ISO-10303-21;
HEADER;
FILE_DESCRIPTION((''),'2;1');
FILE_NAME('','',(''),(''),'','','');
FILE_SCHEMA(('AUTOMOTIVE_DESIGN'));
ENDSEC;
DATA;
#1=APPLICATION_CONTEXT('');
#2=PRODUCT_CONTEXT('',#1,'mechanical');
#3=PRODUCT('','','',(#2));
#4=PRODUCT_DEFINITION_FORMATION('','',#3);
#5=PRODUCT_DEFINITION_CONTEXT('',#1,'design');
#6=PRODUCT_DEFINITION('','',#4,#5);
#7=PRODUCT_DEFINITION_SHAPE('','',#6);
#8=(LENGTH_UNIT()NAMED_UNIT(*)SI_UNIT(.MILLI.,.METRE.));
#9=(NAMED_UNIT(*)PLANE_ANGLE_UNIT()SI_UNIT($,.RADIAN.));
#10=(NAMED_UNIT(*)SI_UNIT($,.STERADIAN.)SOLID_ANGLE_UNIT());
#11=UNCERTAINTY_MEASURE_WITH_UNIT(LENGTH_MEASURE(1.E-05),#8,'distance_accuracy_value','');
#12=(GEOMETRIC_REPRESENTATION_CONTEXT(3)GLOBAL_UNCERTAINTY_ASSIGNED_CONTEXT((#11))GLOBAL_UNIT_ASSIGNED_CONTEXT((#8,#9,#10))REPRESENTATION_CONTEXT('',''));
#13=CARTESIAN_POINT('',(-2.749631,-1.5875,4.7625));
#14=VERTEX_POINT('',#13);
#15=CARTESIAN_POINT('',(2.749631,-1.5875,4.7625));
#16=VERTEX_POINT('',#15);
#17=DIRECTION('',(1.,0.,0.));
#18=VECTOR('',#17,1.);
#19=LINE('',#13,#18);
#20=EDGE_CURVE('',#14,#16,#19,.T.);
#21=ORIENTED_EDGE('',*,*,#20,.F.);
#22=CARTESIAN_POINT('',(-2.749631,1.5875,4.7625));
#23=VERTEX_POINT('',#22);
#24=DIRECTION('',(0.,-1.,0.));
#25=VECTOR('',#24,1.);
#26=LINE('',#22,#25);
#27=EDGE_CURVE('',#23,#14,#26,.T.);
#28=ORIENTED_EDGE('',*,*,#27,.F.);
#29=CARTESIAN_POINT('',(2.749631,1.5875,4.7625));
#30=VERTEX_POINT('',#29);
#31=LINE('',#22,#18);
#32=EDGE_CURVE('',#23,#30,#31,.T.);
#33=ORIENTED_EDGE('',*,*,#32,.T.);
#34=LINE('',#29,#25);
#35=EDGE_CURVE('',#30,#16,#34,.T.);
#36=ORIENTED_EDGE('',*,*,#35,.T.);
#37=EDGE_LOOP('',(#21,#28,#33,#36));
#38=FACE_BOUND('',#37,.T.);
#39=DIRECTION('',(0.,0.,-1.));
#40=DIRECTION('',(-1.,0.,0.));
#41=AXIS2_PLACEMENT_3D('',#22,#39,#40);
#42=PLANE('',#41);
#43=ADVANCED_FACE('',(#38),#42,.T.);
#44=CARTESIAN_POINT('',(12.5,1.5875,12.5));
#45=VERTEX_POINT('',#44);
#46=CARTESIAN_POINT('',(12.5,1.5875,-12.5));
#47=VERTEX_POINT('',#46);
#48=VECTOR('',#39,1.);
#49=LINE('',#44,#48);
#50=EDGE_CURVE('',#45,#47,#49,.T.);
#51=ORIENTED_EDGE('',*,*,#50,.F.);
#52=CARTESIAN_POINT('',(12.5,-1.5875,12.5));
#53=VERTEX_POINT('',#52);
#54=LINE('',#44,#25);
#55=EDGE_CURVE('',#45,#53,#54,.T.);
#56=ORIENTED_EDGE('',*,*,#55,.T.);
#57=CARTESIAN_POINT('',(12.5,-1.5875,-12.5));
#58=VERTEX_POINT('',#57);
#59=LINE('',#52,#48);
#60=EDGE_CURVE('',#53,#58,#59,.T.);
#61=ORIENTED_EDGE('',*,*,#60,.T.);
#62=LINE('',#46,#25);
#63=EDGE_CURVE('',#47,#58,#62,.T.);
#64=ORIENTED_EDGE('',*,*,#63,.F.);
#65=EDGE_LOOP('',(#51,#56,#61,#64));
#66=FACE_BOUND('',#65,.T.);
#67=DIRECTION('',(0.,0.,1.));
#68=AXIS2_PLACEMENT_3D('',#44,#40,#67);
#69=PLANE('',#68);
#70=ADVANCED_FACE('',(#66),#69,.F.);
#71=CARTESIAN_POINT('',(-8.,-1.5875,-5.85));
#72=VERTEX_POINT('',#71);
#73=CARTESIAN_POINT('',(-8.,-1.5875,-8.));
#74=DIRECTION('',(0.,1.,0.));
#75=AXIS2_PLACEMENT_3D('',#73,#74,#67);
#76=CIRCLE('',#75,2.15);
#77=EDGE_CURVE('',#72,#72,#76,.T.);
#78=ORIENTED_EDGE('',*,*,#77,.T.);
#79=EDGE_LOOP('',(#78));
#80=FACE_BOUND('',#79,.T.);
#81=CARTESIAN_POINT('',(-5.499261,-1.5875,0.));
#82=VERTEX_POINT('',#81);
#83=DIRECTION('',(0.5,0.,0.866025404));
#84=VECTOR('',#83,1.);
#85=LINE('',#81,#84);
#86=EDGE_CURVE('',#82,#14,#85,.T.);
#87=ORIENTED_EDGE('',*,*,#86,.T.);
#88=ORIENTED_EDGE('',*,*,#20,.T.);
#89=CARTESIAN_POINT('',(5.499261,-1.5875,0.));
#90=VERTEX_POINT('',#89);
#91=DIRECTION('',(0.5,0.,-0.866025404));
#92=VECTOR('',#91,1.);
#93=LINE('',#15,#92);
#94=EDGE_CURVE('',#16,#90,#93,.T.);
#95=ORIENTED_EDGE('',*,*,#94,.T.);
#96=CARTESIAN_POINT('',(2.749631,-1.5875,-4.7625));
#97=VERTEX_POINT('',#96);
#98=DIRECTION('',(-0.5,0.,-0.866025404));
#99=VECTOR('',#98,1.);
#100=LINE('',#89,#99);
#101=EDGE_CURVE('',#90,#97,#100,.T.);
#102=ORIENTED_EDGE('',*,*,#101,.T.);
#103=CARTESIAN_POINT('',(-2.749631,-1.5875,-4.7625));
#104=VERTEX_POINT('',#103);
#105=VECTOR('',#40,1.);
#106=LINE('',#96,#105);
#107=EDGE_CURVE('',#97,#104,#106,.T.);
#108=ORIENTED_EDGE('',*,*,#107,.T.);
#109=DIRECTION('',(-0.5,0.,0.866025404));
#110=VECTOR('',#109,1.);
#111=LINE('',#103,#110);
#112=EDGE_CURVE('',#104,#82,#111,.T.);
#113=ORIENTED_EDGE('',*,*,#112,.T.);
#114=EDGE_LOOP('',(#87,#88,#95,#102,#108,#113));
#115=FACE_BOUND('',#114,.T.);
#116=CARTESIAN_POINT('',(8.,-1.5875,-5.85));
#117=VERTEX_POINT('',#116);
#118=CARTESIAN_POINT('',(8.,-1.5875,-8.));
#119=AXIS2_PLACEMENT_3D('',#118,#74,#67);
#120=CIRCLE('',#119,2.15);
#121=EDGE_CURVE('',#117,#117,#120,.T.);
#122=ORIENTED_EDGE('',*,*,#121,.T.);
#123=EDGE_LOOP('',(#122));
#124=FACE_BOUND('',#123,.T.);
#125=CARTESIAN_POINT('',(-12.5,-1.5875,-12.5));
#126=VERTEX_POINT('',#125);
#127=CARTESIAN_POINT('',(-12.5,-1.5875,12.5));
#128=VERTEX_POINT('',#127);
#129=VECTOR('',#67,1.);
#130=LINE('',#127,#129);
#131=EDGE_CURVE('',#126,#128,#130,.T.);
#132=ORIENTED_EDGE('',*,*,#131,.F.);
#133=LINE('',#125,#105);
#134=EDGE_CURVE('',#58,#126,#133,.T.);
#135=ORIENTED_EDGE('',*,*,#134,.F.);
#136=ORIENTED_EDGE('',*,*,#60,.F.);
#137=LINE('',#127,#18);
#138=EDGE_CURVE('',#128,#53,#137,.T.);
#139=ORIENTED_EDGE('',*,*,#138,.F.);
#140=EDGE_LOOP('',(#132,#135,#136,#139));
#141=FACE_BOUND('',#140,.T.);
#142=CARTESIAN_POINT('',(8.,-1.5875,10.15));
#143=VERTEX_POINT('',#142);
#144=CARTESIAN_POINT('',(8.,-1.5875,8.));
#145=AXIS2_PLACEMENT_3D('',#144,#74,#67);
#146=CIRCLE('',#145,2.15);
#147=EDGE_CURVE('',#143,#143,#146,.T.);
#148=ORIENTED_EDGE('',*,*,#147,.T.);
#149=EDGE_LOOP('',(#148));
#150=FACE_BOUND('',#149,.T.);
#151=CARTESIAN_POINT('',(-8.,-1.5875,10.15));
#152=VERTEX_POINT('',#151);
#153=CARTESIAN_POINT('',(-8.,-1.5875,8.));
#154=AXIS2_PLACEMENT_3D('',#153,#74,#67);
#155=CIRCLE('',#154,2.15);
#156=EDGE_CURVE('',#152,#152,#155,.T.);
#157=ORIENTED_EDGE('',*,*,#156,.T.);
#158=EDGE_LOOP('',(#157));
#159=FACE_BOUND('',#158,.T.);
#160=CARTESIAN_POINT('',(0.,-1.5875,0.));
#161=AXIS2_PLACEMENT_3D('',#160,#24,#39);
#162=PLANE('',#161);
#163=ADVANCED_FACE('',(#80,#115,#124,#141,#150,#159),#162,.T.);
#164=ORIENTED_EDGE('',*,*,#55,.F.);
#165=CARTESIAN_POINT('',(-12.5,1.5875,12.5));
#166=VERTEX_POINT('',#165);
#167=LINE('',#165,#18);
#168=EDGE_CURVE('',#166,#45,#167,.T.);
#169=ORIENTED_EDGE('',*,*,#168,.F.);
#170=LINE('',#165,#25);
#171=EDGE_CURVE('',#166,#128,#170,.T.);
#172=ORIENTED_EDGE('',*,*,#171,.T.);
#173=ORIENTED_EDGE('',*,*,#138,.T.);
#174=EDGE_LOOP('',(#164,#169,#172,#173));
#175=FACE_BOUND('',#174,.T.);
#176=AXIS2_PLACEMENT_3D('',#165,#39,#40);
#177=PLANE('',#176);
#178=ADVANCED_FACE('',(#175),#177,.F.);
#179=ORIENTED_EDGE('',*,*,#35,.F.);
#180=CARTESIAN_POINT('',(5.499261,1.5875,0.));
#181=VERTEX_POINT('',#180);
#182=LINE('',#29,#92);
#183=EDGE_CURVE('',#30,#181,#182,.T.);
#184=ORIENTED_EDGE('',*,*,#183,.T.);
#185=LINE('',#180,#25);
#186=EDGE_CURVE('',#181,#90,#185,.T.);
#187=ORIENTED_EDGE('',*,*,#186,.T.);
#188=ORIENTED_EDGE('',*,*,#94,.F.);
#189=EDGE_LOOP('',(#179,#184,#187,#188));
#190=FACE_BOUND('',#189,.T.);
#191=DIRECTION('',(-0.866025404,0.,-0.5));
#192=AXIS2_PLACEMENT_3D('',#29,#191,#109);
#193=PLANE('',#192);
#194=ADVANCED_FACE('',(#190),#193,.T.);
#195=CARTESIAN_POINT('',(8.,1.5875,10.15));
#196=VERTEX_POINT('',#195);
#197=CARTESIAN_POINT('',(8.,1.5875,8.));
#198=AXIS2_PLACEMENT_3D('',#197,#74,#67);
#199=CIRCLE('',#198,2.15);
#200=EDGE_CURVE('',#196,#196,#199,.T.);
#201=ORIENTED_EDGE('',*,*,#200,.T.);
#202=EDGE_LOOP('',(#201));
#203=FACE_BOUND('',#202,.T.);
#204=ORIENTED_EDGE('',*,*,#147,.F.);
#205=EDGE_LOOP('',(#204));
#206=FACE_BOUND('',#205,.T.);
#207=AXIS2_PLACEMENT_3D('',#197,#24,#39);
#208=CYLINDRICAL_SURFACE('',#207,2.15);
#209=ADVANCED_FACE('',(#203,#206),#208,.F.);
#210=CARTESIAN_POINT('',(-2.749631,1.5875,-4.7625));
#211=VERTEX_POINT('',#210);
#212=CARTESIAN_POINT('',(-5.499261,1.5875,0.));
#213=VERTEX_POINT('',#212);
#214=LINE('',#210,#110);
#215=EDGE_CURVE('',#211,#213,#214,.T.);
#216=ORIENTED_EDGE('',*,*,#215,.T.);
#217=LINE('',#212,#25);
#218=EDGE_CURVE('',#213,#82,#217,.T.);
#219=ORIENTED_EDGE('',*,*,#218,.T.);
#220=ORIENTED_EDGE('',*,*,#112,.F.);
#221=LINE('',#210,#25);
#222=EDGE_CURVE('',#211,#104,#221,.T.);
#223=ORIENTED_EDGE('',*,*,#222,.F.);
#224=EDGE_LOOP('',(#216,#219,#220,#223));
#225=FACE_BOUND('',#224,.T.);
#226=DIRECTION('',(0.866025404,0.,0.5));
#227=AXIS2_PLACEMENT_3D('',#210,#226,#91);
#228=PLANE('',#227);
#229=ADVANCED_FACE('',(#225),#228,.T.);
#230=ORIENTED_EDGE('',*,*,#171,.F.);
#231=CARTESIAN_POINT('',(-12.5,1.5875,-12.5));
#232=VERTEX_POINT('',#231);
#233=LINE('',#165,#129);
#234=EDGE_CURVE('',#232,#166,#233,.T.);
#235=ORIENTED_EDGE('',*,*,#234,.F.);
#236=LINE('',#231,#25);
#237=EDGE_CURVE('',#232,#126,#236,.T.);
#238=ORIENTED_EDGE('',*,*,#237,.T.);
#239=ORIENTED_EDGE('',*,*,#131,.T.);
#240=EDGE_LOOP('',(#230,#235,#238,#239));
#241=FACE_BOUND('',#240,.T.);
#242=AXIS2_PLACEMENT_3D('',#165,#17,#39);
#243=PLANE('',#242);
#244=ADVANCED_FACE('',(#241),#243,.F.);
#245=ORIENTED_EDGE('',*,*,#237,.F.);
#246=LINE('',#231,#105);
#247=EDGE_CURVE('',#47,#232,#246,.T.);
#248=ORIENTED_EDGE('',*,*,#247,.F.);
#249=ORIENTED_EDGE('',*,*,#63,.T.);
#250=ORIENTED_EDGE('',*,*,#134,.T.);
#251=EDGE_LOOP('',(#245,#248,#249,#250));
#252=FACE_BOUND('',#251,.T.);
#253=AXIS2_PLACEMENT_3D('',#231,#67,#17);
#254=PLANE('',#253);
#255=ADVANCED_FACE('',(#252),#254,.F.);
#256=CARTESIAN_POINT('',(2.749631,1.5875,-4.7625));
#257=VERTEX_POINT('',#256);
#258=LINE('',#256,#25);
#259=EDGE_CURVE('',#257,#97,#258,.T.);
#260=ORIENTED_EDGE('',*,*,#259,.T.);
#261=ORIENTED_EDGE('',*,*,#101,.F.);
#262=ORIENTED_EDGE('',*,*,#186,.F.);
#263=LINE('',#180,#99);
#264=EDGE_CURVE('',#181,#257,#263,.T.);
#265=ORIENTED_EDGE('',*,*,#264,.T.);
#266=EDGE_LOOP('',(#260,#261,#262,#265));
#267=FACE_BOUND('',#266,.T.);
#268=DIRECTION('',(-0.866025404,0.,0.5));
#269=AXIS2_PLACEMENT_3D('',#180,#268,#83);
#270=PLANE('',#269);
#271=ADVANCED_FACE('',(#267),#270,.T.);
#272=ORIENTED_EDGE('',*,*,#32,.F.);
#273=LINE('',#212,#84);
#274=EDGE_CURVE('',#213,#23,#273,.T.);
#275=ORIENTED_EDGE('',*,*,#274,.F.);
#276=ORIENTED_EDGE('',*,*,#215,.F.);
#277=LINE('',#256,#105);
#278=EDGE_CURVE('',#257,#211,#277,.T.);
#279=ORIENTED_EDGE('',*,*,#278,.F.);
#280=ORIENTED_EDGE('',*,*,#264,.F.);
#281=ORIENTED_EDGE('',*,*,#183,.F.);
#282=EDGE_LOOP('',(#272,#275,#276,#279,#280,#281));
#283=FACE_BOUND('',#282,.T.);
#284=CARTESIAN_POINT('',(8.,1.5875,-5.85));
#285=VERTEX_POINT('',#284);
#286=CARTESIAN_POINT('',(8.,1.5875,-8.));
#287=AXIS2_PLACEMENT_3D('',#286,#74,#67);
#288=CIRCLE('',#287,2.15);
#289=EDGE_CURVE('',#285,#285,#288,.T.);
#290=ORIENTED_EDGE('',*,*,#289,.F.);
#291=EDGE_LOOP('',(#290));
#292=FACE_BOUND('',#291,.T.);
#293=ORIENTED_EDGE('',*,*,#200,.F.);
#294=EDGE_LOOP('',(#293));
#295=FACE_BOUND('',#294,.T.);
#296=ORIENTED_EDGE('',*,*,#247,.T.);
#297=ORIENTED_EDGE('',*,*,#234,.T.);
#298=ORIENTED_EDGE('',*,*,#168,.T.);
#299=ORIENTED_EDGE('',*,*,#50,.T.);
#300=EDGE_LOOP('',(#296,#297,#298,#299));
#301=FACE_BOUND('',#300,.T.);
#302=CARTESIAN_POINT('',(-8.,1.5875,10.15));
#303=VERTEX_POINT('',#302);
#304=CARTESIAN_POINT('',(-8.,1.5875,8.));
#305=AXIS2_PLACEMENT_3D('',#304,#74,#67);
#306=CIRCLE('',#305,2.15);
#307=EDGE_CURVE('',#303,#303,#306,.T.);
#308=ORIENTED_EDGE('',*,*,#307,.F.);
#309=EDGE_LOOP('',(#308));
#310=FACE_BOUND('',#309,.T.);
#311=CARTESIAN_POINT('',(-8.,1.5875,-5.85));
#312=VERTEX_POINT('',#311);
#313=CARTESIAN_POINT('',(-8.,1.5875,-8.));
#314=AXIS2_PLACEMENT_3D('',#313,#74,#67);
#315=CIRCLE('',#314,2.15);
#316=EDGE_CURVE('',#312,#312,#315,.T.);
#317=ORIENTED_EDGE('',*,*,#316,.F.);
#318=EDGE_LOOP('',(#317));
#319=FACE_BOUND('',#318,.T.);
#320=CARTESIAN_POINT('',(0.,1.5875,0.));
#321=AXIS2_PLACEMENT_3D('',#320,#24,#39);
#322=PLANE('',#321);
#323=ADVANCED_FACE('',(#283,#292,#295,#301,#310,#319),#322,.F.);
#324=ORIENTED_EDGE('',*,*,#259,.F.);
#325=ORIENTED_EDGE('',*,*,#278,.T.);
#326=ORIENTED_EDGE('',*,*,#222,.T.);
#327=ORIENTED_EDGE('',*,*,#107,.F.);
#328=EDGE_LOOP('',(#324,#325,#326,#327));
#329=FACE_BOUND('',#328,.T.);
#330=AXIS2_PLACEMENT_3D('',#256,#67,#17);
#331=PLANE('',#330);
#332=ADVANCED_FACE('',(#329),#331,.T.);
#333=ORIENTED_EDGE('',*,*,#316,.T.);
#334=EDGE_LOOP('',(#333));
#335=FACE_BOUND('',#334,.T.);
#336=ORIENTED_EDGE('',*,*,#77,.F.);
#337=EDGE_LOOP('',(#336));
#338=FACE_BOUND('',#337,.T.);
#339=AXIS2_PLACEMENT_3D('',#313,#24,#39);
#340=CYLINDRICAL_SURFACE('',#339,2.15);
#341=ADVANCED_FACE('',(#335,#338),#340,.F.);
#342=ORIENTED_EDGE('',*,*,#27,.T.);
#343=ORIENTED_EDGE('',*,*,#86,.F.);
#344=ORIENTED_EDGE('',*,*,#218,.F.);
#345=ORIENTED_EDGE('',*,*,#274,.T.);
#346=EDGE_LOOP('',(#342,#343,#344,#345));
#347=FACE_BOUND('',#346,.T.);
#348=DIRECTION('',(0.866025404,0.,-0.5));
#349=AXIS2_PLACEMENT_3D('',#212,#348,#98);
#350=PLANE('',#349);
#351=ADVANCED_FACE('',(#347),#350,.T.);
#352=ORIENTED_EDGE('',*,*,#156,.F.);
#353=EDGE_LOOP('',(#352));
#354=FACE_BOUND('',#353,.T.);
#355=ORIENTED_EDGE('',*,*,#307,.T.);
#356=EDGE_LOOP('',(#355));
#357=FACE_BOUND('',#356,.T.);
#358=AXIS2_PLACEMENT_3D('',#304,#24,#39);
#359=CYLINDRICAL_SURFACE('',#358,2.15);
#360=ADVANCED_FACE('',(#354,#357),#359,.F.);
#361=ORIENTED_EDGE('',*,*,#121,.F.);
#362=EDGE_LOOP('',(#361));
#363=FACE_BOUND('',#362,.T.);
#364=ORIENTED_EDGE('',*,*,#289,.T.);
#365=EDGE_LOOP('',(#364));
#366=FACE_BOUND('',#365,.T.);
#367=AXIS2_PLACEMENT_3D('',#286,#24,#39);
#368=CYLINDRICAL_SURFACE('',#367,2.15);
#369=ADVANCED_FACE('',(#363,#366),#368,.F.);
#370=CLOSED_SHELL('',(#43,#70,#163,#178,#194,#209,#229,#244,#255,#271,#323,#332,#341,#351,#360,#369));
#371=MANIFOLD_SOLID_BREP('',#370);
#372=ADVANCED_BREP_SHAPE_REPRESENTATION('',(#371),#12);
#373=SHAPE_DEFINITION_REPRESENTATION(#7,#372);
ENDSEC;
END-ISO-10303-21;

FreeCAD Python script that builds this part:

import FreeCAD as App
import Part
import Sketcher
from FreeCAD import Vector
Q = App.Units.Quantity

doc = App.newDocument("Part")
body = doc.addObject("PartDesign::Body", "Body")

# Sketch on XZ plane
sketch1 = body.newObject("Sketcher::SketchObject", "Sketch")
sketch1.AttachmentSupport = (doc.getObject("XZ_Plane"), [""])
sketch1.MapMode = "FlatFace"
sketch1.addGeometry(Part.LineSegment(Vector(-12.5, -12.5, 0), Vector(-12.5, 12.5, 0)), False)
sketch1.addGeometry(Part.LineSegment(Vector(-12.5, 12.5, 0), Vector(12.5, 12.5, 0)), False)
sketch1.addGeometry(Part.LineSegment(Vector(12.5, 12.5, 0), Vector(12.5, -12.5, 0)), False)
sketch1.addGeometry(Part.LineSegment(Vector(12.5, -12.5, 0), Vector(-12.5, -12.5, 0)), False)
sketch1.addGeometry(Part.Circle(Vector(-8, 8, 0), Vector(0, 0, 1), 2.1), False)
sketch1.addGeometry(Part.LineSegment(Vector(2.7, 4.8, 0), Vector(-2.7, 4.8, 0)), False)
sketch1.addGeometry(Part.LineSegment(Vector(-2.7, 4.8, 0), Vector(-5.5, 0, 0)), False)
sketch1.addGeometry(Part.LineSegment(Vector(-5.5, 0, 0), Vector(-2.7, -4.8, 0)), False)
sketch1.addGeometry(Part.LineSegment(Vector(-2.7, -4.8, 0), Vector(2.7, -4.8, 0)), False)
sketch1.addGeometry(Part.LineSegment(Vector(2.7, -4.8, 0), Vector(5.5, 0, 0)), False)
sketch1.addGeometry(Part.LineSegment(Vector(5.5, 0, 0), Vector(2.7, 4.8, 0)), False)
sketch1.addGeometry(Part.Circle(Vector(8, 8, 0), Vector(0, 0, 1), 2.1), False)
sketch1.addGeometry(Part.Circle(Vector(-8, -8, 0), Vector(0, 0, 1), 2.1), False)
sketch1.addGeometry(Part.Circle(Vector(8, -8, 0), Vector(0, 0, 1), 2.1), False)
sketch1.addConstraint(Sketcher.Constraint("Coincident", 0, 2, 1, 1))
sketch1.addConstraint(Sketcher.Constraint("Coincident", 1, 2, 2, 1))
sketch1.addConstraint(Sketcher.Constraint("Coincident", 2, 2, 3, 1))
sketch1.addConstraint(Sketcher.Constraint("Coincident", 3, 2, 0, 1))
sketch1.addConstraint(Sketcher.Constraint("Coincident", 5, 2, 6, 1))
sketch1.addConstraint(Sketcher.Constraint("Coincident", 6, 2, 7, 1))
sketch1.addConstraint(Sketcher.Constraint("Coincident", 7, 2, 8, 1))
sketch1.addConstraint(Sketcher.Constraint("Coincident", 8, 2, 9, 1))
sketch1.addConstraint(Sketcher.Constraint("Coincident", 9, 2, 10, 1))
sketch1.addConstraint(Sketcher.Constraint("Coincident", 10, 2, 5, 1))
sketch1.addConstraint(Sketcher.Constraint("Vertical", 0))
sketch1.addConstraint(Sketcher.Constraint("Horizontal", 1))
sketch1.addConstraint(Sketcher.Constraint("Vertical", 2))
sketch1.addConstraint(Sketcher.Constraint("Horizontal", 3))
sketch1.addConstraint(Sketcher.Constraint("Horizontal", 5))
sketch1.addConstraint(Sketcher.Constraint("Horizontal", 8))
sketch1.addConstraint(Sketcher.Constraint("Equal", 4, 11))
sketch1.addConstraint(Sketcher.Constraint("Equal", 11, 12))
sketch1.addConstraint(Sketcher.Constraint("Equal", 12, 13))
sketch1.addConstraint(Sketcher.Constraint("Symmetric", 11, 3, 12, 3, -1, 1))
sketch1.addConstraint(Sketcher.Constraint("Symmetric", 4, 3, 13, 3, -1, 1))
sketch1.addConstraint(Sketcher.Constraint("Symmetric", 0, 2, 2, 2, -1, 1))
sketch1.addConstraint(Sketcher.Constraint("Symmetric", 5, 2, 8, 2, -1, 1))
sketch1.addConstraint(Sketcher.Constraint("Symmetric", 6, 2, 9, 2, -1, 1))
sketch1.addConstraint(Sketcher.Constraint("Symmetric", 4, 3, 11, 3, -2))
sketch1.addConstraint(Sketcher.Constraint("PointOnObject", 6, 2, -1))
sketch1.addConstraint(Sketcher.Constraint("Parallel", 7, 10))
sketch1.addConstraint(Sketcher.Constraint("Vertical", 5, 2, 7, 2))
sketch1.addConstraint(Sketcher.Constraint("Equal", 3, 0))
sketch1.addConstraint(Sketcher.Constraint("Diameter", 4, Q("4.3 mm")))
sketch1.addConstraint(Sketcher.Constraint("DistanceX", 1, 1, 1, 2, Q("25 mm")))
sketch1.addConstraint(Sketcher.Constraint("Angle", 6, Q("-120 deg")))
sketch1.addConstraint(Sketcher.Constraint("DistanceX", 4, 3, -1, 1, Q("8 mm")))
sketch1.addConstraint(Sketcher.Constraint("DistanceY", -1, 1, 4, 3, Q("8 mm")))
sketch1.addConstraint(Sketcher.Constraint("DistanceY", 7, 2, 5, 2, Q("9.525 mm")))
sketch1.addConstraint(Sketcher.Constraint("DistanceX", 5, 2, 5, 1, Q("5.499261 mm")))
pad1 = body.newObject("PartDesign::Pad", "Pad")
pad1.Profile = sketch1
pad1.Length = 3.175
pad1.Midplane = True

doc.recompute()
